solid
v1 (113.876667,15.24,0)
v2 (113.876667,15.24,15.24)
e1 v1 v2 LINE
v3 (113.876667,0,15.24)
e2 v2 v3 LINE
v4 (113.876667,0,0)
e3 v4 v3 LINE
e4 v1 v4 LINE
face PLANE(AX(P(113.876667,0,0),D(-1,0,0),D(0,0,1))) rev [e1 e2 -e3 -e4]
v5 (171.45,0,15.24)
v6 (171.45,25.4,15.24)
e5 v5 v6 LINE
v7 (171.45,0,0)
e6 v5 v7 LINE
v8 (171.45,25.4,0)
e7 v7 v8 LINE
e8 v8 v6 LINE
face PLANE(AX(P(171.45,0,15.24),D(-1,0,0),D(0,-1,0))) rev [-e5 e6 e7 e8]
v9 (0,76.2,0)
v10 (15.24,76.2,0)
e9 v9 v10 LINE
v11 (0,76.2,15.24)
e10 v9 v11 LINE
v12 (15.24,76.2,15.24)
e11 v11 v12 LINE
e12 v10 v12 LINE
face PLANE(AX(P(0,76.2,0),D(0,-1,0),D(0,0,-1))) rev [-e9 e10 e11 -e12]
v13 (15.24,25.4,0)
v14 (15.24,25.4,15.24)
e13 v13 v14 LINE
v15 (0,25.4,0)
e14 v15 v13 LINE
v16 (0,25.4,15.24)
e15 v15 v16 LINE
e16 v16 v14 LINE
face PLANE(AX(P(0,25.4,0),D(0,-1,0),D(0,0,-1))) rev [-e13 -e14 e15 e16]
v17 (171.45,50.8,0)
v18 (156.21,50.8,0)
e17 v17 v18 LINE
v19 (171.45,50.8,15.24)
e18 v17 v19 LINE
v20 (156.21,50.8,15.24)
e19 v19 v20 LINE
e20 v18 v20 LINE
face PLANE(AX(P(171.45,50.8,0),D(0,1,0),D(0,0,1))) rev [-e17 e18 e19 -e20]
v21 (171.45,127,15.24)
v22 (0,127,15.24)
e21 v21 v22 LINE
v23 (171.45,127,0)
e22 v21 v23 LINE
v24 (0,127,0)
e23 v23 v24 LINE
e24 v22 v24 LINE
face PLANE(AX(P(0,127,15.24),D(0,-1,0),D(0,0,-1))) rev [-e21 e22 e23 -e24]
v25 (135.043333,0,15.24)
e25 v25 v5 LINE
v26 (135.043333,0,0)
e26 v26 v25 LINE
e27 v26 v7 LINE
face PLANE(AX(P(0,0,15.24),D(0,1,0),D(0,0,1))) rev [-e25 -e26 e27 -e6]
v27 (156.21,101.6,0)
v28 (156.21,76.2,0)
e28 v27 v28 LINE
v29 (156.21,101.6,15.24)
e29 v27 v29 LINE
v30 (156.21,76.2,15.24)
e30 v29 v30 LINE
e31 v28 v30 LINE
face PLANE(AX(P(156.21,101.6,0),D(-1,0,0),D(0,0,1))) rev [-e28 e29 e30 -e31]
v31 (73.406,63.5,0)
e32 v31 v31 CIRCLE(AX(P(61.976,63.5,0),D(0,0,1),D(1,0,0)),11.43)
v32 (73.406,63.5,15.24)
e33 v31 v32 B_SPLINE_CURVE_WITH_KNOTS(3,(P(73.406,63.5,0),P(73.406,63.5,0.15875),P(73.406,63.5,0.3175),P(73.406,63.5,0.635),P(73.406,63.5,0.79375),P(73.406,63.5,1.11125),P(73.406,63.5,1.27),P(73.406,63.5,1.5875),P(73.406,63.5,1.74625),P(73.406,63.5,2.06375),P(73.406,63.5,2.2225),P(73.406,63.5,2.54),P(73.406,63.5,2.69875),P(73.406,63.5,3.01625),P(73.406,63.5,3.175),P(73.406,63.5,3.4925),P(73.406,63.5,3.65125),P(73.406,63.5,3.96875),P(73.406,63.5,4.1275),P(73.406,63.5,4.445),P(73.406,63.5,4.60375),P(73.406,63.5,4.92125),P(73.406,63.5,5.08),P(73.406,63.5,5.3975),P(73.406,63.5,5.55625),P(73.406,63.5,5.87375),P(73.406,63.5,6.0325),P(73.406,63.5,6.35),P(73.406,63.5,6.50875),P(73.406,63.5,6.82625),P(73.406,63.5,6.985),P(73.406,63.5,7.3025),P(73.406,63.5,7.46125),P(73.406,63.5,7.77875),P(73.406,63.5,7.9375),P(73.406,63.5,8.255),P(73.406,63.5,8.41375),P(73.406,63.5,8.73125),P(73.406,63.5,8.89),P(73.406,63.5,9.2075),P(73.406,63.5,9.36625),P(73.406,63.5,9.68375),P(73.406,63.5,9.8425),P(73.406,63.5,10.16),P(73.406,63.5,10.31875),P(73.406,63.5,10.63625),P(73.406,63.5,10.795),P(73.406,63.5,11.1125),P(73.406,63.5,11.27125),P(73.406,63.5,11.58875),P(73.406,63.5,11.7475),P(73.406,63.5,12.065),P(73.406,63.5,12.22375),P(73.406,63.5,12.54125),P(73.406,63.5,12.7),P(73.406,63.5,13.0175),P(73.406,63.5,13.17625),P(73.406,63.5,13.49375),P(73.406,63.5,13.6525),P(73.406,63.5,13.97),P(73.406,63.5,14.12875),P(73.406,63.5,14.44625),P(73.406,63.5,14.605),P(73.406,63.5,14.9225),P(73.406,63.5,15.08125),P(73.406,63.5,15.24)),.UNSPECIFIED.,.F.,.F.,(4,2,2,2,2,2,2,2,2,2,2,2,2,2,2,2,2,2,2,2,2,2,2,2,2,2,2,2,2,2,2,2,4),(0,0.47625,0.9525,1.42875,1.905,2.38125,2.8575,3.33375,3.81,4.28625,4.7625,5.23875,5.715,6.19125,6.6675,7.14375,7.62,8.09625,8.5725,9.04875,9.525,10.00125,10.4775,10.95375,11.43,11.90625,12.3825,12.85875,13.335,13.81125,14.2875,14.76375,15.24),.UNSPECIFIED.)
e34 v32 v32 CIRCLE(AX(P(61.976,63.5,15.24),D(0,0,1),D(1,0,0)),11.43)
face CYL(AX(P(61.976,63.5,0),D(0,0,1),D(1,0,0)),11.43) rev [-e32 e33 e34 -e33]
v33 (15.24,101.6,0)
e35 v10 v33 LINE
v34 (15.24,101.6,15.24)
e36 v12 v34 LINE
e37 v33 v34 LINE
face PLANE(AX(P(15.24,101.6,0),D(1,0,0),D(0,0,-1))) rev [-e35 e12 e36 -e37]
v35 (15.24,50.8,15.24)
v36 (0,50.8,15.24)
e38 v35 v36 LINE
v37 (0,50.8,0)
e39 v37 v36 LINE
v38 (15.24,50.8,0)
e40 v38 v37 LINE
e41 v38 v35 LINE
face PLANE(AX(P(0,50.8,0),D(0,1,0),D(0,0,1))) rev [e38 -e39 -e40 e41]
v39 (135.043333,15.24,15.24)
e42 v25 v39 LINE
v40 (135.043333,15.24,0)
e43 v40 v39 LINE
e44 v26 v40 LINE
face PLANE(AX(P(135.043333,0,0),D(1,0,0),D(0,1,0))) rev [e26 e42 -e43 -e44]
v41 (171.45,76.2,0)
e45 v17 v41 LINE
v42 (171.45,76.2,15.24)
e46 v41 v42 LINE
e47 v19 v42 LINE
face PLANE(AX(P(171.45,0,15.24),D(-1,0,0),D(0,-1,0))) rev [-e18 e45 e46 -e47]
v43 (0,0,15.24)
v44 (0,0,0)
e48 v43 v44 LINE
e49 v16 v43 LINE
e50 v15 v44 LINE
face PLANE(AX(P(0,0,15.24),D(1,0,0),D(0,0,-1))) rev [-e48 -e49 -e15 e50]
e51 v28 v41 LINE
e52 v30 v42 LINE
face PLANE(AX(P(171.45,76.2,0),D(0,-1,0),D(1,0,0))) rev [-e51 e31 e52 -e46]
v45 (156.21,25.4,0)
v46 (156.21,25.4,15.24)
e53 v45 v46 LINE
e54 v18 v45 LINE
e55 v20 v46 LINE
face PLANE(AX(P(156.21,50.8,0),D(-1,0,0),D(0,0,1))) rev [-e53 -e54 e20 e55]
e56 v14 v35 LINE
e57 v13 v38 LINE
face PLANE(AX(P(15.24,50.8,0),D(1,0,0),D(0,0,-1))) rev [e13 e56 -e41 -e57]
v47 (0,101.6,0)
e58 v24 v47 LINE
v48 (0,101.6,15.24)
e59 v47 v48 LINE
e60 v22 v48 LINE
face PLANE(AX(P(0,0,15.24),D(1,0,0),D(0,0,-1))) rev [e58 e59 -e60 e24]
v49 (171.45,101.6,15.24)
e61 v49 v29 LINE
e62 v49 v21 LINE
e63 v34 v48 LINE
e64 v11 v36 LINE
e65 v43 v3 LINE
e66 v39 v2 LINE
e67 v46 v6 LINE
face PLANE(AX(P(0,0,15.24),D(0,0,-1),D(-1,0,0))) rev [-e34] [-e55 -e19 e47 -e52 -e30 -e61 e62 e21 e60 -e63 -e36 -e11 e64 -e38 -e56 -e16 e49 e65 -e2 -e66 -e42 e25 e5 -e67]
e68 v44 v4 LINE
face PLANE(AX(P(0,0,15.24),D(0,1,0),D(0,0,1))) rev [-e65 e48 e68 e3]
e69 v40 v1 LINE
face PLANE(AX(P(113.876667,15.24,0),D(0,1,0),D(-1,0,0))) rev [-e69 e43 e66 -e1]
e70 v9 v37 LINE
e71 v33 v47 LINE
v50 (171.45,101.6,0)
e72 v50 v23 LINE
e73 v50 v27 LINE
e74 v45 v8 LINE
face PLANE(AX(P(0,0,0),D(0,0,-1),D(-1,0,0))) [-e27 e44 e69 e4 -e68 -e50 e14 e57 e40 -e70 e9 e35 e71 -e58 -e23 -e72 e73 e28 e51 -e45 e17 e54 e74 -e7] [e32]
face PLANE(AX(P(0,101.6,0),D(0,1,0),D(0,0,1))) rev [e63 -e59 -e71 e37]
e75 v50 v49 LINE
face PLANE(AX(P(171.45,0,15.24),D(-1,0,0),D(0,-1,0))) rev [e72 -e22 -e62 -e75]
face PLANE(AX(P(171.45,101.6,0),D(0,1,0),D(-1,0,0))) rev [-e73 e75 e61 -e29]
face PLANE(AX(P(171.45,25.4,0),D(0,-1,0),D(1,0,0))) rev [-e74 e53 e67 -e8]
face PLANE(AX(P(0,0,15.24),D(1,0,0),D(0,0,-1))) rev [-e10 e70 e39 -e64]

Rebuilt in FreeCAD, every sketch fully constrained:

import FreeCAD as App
import Part
import Sketcher
from FreeCAD import Vector
Q = App.Units.Quantity


def add_polygon(sketch, points):
    """Adds a closed chain of lines whose ends are joined by coincident constraints."""
    first, n = sketch.GeometryCount, len(points)
    for a, b in zip(points, points[1:] + points[:1]):
        sketch.addGeometry(Part.LineSegment(App.Vector(*a, 0), App.Vector(*b, 0)), False)
    for i in range(n):
        sketch.addConstraint(Sketcher.Constraint("Coincident", first + i, 2, first + (i + 1) % n, 1))

doc = App.newDocument("Part")
body = doc.addObject("PartDesign::Body", "Body")

# Sketch on XY plane
sketch1 = body.newObject("Sketcher::SketchObject", "Sketch")
sketch1.AttachmentSupport = (doc.getObject("XY_Plane"), [""])
sketch1.MapMode = "FlatFace"
add_polygon(sketch1, [(0, 127), (0, 0), (171, 0), (171, 127)])  # lines 0-3
sketch1.addConstraint([
    Sketcher.Constraint("Vertical", 0),
    Sketcher.Constraint("Horizontal", 1),
    Sketcher.Constraint("Vertical", 2),
    Sketcher.Constraint("Horizontal", 3),
    Sketcher.Constraint("Coincident", 0, 2, -1, 1),
    Sketcher.Constraint("DistanceY", 0, 2, 0, 1, Q("5 in")),
    Sketcher.Constraint("DistanceX", 1, 1, 1, 2, Q("6.75 in")),
])
pad1 = body.newObject("PartDesign::Pad", "Pad")
pad1.Profile = sketch1
pad1.Length = Q("0.6 in")

# Sketch on XY plane
sketch2 = body.newObject("Sketcher::SketchObject", "Sketch001")
sketch2.AttachmentSupport = (doc.getObject("XY_Plane"), [""])
sketch2.MapMode = "FlatFace"
sketch2.AttachmentOffset = App.Placement(Vector(0, 0, 0.6 * 25.4), App.Rotation())
add_polygon(sketch2, [(0, 102), (0, 76), (15, 76), (15, 102)])  # lines 0-3
add_polygon(sketch2, [(0, 51), (0, 25), (15, 25), (15, 51)])  # lines 4-7
add_polygon(sketch2, [(156, 102), (156, 76), (171, 76), (171, 102)])  # lines 8-11
add_polygon(sketch2, [(156, 51), (156, 25), (171, 25), (171, 51)])  # lines 12-15
sketch2.addConstraint([
    Sketcher.Constraint("Vertical", 0),
    Sketcher.Constraint("Horizontal", 1),
    Sketcher.Constraint("Vertical", 2),
    Sketcher.Constraint("Horizontal", 3),
    Sketcher.Constraint("Vertical", 4),
    Sketcher.Constraint("Horizontal", 5),
    Sketcher.Constraint("Vertical", 6),
    Sketcher.Constraint("Horizontal", 7),
    Sketcher.Constraint("Vertical", 8),
    Sketcher.Constraint("Horizontal", 9),
    Sketcher.Constraint("Vertical", 10),
    Sketcher.Constraint("Horizontal", 11),
    Sketcher.Constraint("Vertical", 12),
    Sketcher.Constraint("Horizontal", 13),
    Sketcher.Constraint("Vertical", 14),
    Sketcher.Constraint("Horizontal", 15),
    Sketcher.Constraint("PointOnObject", 0, 2, -2),
    Sketcher.Constraint("PointOnObject", 4, 2, -2),
    Sketcher.Constraint("Horizontal", 1, 2, 8, 2),
    Sketcher.Constraint("Horizontal", 3, 2, 10, 2),
    Sketcher.Constraint("Horizontal", 5, 2, 12, 2),
    Sketcher.Constraint("Horizontal", 7, 2, 14, 2),
    Sketcher.Constraint("Vertical", 2, 2, 5, 2),
    Sketcher.Constraint("Vertical", 11, 2, 12, 2),
    Sketcher.Constraint("Vertical", 10, 2, 13, 2),
    Sketcher.Constraint("Equal", 7, 9),
    Sketcher.Constraint("Equal", 2, 4),
    Sketcher.Constraint("DistanceY", 0, 2, 0, 1, Q("1 in")),
    Sketcher.Constraint("DistanceX", 1, 1, 1, 2, Q("0.6 in")),
    Sketcher.Constraint("DistanceY", -1, 1, 0, 2, Q("3 in")),
    Sketcher.Constraint("DistanceY", -1, 1, 4, 2, Q("1 in")),
    Sketcher.Constraint("DistanceX", -1, 1, 8, 2, Q("6.15 in")),
])
pocket1 = body.newObject("PartDesign::Pocket", "Pocket")
pocket1.Profile = sketch2
pocket1.Length = Q("0.6 in")

# Sketch on XY plane
sketch3 = body.newObject("Sketcher::SketchObject", "Sketch002")
sketch3.AttachmentSupport = (doc.getObject("XY_Plane"), [""])
sketch3.MapMode = "FlatFace"
sketch3.AttachmentOffset = App.Placement(Vector(0, 0, 0.6 * 25.4), App.Rotation())
sketch3.addGeometry(Part.Circle(Vector(62, 64, 0), Vector(0, 0, 1), 11), False)
sketch3.addConstraint([
    Sketcher.Constraint("Diameter", 0, Q("0.9 in")),
    Sketcher.Constraint("DistanceY", -1, 1, 0, 3, Q("2.5 in")),
    Sketcher.Constraint("DistanceX", -1, 1, 0, 3, Q("2.44 in")),
])
pocket2 = body.newObject("PartDesign::Pocket", "Pocket001")
pocket2.Profile = sketch3
pocket2.Length = Q("0.6 in")

# Sketch on XY plane
sketch4 = body.newObject("Sketcher::SketchObject", "Sketch003")
sketch4.AttachmentSupport = (doc.getObject("XY_Plane"), [""])
sketch4.MapMode = "FlatFace"
sketch4.AttachmentOffset = App.Placement(Vector(0, 0, 0.6 * 25.4), App.Rotation())
add_polygon(sketch4, [(114, 15), (114, 0), (135, 0), (135, 15)])  # lines 0-3
sketch4.addConstraint([
    Sketcher.Constraint("Vertical", 0),
    Sketcher.Constraint("Horizontal", 1),
    Sketcher.Constraint("Vertical", 2),
    Sketcher.Constraint("Horizontal", 3),
    Sketcher.Constraint("PointOnObject", 0, 2, -1),
    Sketcher.Constraint("DistanceY", 0, 2, 0, 1, Q("0.6 in")),
    Sketcher.Constraint("DistanceX", 1, 1, 1, 2, 21.166667),
    Sketcher.Constraint("DistanceX", -1, 1, 0, 2, 113.876667),
])
pocket3 = body.newObject("PartDesign::Pocket", "Pocket002")
pocket3.Profile = sketch4
pocket3.Length = Q("0.6 in")

doc.recompute()
